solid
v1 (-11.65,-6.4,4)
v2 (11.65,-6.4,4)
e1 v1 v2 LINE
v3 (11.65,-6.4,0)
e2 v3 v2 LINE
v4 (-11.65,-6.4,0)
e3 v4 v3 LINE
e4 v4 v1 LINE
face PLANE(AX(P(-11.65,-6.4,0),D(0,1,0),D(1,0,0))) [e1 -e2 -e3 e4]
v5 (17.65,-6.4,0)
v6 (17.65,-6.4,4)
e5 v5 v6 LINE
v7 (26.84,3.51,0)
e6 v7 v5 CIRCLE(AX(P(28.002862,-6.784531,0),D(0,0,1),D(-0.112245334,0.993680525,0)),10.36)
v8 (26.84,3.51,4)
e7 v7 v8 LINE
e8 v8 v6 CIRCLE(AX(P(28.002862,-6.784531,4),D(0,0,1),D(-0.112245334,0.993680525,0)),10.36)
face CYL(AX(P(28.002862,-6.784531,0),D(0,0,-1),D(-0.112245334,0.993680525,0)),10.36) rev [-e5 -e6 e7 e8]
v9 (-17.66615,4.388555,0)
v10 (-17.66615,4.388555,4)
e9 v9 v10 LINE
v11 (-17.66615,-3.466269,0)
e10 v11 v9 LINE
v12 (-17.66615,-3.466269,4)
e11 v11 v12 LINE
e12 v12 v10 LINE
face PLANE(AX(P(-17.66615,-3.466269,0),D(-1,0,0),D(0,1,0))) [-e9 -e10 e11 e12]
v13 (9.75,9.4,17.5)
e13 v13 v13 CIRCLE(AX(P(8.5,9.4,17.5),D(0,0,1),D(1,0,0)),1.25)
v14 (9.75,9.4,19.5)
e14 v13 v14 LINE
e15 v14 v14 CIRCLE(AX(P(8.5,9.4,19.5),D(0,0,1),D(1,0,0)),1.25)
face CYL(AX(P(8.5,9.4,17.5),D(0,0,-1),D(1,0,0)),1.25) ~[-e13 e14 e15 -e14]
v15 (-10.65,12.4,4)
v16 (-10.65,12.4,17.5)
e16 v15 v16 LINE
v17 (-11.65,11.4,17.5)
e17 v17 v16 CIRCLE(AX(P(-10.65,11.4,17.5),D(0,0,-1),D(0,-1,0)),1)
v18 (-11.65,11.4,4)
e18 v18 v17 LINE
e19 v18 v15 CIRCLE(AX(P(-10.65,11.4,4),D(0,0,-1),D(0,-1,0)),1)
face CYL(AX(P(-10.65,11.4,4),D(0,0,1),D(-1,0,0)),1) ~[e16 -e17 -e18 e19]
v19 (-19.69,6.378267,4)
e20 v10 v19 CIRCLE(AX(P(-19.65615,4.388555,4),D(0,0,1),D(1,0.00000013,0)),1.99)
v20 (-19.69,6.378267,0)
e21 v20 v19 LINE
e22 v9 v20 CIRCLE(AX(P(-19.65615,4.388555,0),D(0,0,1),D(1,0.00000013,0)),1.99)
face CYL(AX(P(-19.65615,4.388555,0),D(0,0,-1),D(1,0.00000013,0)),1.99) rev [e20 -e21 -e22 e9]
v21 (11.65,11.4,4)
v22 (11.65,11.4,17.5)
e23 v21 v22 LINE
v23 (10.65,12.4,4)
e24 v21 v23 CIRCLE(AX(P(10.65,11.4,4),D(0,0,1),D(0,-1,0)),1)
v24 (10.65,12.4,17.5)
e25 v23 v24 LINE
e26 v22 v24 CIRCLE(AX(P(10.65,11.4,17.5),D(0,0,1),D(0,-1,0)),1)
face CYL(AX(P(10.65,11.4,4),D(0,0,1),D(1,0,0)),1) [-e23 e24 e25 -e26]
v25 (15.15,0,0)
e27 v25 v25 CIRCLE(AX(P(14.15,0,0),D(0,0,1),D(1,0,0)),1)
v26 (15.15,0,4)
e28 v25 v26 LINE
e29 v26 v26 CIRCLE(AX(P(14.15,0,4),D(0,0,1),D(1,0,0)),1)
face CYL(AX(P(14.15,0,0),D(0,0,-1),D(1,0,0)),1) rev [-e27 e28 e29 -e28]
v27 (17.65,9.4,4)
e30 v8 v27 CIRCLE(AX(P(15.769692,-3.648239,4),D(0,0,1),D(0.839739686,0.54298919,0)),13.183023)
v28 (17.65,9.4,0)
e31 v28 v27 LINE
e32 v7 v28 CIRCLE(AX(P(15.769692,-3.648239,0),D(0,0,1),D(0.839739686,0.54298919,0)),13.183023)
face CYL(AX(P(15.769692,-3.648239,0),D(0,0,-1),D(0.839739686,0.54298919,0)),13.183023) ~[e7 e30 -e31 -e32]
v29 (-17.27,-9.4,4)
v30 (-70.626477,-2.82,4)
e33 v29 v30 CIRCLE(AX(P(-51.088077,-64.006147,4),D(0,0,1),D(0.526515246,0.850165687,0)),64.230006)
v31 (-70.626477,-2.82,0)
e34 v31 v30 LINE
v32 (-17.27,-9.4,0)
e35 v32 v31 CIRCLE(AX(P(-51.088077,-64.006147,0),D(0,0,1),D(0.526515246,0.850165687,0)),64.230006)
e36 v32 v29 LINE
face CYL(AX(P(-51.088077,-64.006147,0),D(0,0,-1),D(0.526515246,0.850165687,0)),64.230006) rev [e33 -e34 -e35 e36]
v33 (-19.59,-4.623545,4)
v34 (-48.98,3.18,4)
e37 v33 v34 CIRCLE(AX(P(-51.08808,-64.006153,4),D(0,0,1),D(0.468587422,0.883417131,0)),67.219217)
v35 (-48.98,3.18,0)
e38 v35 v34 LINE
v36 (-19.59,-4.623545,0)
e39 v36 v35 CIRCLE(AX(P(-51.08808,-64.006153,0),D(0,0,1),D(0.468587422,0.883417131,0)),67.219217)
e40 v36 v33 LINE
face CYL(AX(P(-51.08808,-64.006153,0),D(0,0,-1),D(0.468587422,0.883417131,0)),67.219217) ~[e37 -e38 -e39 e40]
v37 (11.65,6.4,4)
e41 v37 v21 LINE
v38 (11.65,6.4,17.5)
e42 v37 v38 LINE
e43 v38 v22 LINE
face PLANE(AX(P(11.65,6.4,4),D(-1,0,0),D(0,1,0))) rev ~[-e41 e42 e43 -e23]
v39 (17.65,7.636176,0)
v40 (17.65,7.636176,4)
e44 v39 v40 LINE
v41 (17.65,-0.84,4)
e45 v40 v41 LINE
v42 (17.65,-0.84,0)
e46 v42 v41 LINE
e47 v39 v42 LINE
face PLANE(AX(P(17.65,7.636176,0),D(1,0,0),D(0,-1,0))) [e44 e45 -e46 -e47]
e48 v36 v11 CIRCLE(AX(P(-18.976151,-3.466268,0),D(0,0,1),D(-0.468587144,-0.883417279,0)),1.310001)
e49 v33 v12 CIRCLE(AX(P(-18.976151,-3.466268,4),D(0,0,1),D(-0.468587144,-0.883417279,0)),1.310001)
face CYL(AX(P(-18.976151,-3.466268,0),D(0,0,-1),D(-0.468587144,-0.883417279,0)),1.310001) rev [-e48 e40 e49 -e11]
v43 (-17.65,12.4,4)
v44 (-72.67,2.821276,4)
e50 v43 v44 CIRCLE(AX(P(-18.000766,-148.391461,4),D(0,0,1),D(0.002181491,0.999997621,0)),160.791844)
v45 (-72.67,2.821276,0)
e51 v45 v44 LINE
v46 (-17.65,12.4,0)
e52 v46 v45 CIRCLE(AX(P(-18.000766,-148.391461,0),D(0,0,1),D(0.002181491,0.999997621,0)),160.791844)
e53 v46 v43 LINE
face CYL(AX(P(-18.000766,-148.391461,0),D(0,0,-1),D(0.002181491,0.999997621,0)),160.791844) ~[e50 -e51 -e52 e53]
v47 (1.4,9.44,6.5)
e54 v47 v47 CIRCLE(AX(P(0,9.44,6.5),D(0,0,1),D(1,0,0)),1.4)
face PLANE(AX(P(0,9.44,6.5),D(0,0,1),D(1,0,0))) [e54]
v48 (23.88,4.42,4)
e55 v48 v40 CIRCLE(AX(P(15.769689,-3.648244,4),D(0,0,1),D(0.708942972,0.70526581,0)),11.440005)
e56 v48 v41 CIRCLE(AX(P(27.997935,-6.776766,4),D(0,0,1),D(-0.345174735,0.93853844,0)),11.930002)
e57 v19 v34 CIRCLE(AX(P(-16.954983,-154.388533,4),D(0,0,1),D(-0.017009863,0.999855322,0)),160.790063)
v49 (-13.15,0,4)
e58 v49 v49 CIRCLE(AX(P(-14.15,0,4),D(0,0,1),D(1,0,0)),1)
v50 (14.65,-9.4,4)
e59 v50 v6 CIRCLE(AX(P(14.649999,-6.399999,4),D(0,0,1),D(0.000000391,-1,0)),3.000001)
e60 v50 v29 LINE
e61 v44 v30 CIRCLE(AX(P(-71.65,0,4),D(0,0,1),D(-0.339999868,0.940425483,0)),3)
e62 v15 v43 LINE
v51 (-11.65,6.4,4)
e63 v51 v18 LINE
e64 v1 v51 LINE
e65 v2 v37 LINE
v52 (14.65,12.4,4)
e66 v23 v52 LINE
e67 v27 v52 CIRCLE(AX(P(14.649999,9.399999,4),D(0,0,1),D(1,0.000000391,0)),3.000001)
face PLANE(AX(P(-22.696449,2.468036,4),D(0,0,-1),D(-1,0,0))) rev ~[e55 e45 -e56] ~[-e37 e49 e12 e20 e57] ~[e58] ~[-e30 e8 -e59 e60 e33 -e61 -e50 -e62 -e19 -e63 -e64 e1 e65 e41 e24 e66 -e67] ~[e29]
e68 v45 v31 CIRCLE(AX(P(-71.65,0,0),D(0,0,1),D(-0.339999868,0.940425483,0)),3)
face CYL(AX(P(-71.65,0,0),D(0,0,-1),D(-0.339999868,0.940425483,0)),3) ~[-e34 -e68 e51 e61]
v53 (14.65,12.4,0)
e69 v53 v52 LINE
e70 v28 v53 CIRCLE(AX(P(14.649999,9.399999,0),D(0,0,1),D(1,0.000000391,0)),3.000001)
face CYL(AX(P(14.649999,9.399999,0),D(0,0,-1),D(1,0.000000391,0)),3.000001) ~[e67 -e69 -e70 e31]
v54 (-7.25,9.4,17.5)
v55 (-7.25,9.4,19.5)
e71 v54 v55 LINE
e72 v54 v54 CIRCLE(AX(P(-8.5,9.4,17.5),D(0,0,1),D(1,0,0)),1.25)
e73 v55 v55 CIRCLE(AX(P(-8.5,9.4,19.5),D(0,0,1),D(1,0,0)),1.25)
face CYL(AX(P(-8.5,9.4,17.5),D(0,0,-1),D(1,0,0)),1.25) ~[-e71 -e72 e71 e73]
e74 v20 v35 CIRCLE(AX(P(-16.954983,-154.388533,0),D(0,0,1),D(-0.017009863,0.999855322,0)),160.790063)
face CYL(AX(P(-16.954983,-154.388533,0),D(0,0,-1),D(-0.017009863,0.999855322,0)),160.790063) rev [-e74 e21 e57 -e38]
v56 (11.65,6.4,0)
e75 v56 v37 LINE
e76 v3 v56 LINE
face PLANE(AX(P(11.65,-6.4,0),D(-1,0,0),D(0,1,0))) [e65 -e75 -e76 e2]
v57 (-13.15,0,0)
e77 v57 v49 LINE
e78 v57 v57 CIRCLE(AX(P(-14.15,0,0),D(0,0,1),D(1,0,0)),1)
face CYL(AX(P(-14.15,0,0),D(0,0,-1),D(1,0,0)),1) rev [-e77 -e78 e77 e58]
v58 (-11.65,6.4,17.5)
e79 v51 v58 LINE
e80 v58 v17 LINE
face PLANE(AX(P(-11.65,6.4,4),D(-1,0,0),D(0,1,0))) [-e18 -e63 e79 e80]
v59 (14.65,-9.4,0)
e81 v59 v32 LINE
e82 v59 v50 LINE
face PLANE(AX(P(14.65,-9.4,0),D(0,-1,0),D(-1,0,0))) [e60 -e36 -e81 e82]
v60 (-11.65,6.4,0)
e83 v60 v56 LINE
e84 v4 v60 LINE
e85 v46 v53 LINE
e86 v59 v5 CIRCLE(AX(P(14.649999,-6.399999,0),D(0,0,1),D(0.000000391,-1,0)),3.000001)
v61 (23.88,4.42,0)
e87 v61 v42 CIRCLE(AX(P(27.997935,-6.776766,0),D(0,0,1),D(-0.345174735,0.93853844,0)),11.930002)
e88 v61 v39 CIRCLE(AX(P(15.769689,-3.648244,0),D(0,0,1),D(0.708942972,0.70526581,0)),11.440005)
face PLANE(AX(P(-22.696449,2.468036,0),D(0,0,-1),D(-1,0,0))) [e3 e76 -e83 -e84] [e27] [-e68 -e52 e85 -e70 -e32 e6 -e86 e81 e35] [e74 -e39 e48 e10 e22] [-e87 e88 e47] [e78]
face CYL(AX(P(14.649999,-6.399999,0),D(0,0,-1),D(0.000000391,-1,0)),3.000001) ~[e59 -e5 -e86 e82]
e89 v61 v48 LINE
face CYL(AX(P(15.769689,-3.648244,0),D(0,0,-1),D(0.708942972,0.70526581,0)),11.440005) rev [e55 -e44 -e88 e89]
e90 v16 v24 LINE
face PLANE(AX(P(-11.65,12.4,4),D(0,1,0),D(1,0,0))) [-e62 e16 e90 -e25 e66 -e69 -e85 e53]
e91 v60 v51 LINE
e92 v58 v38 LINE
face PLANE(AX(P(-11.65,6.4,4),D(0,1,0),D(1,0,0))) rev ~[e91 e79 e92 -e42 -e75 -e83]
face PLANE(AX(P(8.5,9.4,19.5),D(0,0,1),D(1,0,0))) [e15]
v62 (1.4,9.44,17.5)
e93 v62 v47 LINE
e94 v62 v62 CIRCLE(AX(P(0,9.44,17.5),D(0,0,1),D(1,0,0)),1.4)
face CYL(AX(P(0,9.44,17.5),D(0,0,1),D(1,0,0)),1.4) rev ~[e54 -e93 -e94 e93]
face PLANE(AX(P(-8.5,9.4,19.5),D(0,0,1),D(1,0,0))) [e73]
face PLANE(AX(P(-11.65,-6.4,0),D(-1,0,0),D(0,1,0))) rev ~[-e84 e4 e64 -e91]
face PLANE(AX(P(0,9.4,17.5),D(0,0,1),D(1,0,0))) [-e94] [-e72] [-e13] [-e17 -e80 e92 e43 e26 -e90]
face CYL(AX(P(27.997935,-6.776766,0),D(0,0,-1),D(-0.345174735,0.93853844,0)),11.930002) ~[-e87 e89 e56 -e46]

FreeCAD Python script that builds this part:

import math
import FreeCAD as App
import Part
import Sketcher

V = App.Vector
Q = App.Units.Quantity


def edges_at(feature, points):
    """Names of the edges that pass closest to the given points."""
    edges = feature.Shape.Edges
    near = lambda p: min(range(len(edges)), key=lambda i: edges[i].distToShape(Part.Vertex(*p))[0])
    return sorted({f"Edge{near(p) + 1}" for p in points})

doc = App.newDocument("Part")
body = doc.addObject("PartDesign::Body", "Body")

# Sketch on XY plane
sketch1 = doc.addObject("Sketcher::SketchObject", "Sketch")
body.addObject(sketch1)
sketch1.AttachmentSupport = (doc.XY_Plane, [""])
sketch1.MapMode = "FlatFace"
sketch1.addGeometry(Part.LineSegment(V(14.7, 12.4, 0), V(-17.6, 12.4, 0)), False)
sketch1.addGeometry(Part.ArcOfCircle(Part.Circle(V(-18, -148.4, 0), V(0, 0, 1), 160.8), math.radians(90), math.radians(110)), False)
sketch1.addGeometry(Part.ArcOfCircle(Part.Circle(V(-71.7, 0, 0), V(0, 0, 1), 3), math.radians(110), math.radians(290)), False)
sketch1.addGeometry(Part.ArcOfCircle(Part.Circle(V(-51.1, -64, 0), V(0, 0, 1), 64.2), math.radians(58), math.radians(108)), False)
sketch1.addGeometry(Part.LineSegment(V(-17.3, -9.4, 0), V(14.7, -9.4, 0)), False)
sketch1.addGeometry(Part.ArcOfCircle(Part.Circle(V(14.6, -6.4, 0), V(0, 0, 1), 3), math.radians(-90), math.radians(0)), False)
sketch1.addGeometry(Part.ArcOfCircle(Part.Circle(V(28, -6.8, 0), V(0, 0, 1), 10.4), math.radians(96), math.radians(178)), False)
sketch1.addGeometry(Part.ArcOfCircle(Part.Circle(V(15.8, -3.6, 0), V(0, 0, 1), 13.2), math.radians(33), math.radians(82)), False)
sketch1.addGeometry(Part.ArcOfCircle(Part.Circle(V(14.6, 9.4, 0), V(0, 0, 1), 3), math.radians(0), math.radians(90)), False)
sketch1.addGeometry(Part.Circle(V(14.2, 0, 0), V(0, 0, 1), 1), False)
sketch1.addGeometry(Part.LineSegment(V(-11.7, -6.4, 0), V(-11.7, 6.4, 0)), False)
sketch1.addGeometry(Part.LineSegment(V(-11.7, 6.4, 0), V(11.7, 6.4, 0)), False)
sketch1.addGeometry(Part.LineSegment(V(11.7, 6.4, 0), V(11.7, -6.4, 0)), False)
sketch1.addGeometry(Part.LineSegment(V(11.7, -6.4, 0), V(-11.7, -6.4, 0)), False)
sketch1.addGeometry(Part.Circle(V(-14.2, 0, 0), V(0, 0, 1), 1), False)
sketch1.addGeometry(Part.ArcOfCircle(Part.Circle(V(15.8, -3.6, 0), V(0, 0, 1), 11.4), math.radians(45), math.radians(81)), False)
sketch1.addGeometry(Part.ArcOfCircle(Part.Circle(V(28, -6.8, 0), V(0, 0, 1), 11.9), math.radians(110), math.radians(150)), False)
sketch1.addGeometry(Part.LineSegment(V(17.6, -0.8, 0), V(17.6, 7.6, 0)), False)
sketch1.addGeometry(Part.ArcOfCircle(Part.Circle(V(-19, -3.5, 0), V(0, 0, 1), 1.3), math.radians(-118), math.radians(0)), False)
sketch1.addGeometry(Part.ArcOfCircle(Part.Circle(V(-51.1, -64, 0), V(0, 0, 1), 67.2), math.radians(62), math.radians(88)), False)
sketch1.addGeometry(Part.ArcOfCircle(Part.Circle(V(-17, -154.4, 0), V(0, 0, 1), 160.8), math.radians(90.97), math.radians(101.49)), False)
sketch1.addGeometry(Part.ArcOfCircle(Part.Circle(V(-19.7, 4.4, 0), V(0, 0, 1), 2), math.radians(0), math.radians(91)), False)
sketch1.addGeometry(Part.LineSegment(V(-17.7, 4.4, 0), V(-17.7, -3.5, 0)), False)
sketch1.addConstraint(Sketcher.Constraint("Coincident", 0, 2, 1, 1))
sketch1.addConstraint(Sketcher.Constraint("Tangent", 1, 2, 2, 1))
sketch1.addConstraint(Sketcher.Constraint("Coincident", 2, 2, 3, 2))
sketch1.addConstraint(Sketcher.Constraint("Coincident", 3, 1, 4, 1))
sketch1.addConstraint(Sketcher.Constraint("Tangent", 4, 2, 5, 1))
sketch1.addConstraint(Sketcher.Constraint("Coincident", 5, 2, 6, 2))
sketch1.addConstraint(Sketcher.Constraint("Coincident", 6, 1, 7, 1))
sketch1.addConstraint(Sketcher.Constraint("Coincident", 7, 2, 8, 1))
sketch1.addConstraint(Sketcher.Constraint("Tangent", 8, 2, 0, 1))
sketch1.addConstraint(Sketcher.Constraint("Coincident", 10, 2, 11, 1))
sketch1.addConstraint(Sketcher.Constraint("Coincident", 11, 2, 12, 1))
sketch1.addConstraint(Sketcher.Constraint("Coincident", 12, 2, 13, 1))
sketch1.addConstraint(Sketcher.Constraint("Coincident", 13, 2, 10, 1))
sketch1.addConstraint(Sketcher.Constraint("Coincident", 15, 1, 16, 1))
sketch1.addConstraint(Sketcher.Constraint("Coincident", 16, 2, 17, 1))
sketch1.addConstraint(Sketcher.Constraint("Coincident", 17, 2, 15, 2))
sketch1.addConstraint(Sketcher.Constraint("Tangent", 18, 1, 19, 1))
sketch1.addConstraint(Sketcher.Constraint("Coincident", 19, 2, 20, 2))
sketch1.addConstraint(Sketcher.Constraint("Tangent", 20, 1, 21, 2))
sketch1.addConstraint(Sketcher.Constraint("Tangent", 21, 1, 22, 1))
sketch1.addConstraint(Sketcher.Constraint("Tangent", 22, 2, 18, 2))
sketch1.addConstraint(Sketcher.Constraint("Horizontal", 0))
sketch1.addConstraint(Sketcher.Constraint("Horizontal", 4))
sketch1.addConstraint(Sketcher.Constraint("Vertical", 10))
sketch1.addConstraint(Sketcher.Constraint("Horizontal", 11))
sketch1.addConstraint(Sketcher.Constraint("Vertical", 12))
sketch1.addConstraint(Sketcher.Constraint("Horizontal", 13))
sketch1.addConstraint(Sketcher.Constraint("Vertical", 17))
sketch1.addConstraint(Sketcher.Constraint("Vertical", 22))
sketch1.addConstraint(Sketcher.Constraint("Coincident", 15, 3, 7, 3))
sketch1.addConstraint(Sketcher.Constraint("Coincident", 19, 3, 3, 3))
sketch1.addConstraint(Sketcher.Constraint("Equal", 2, 5))
sketch1.addConstraint(Sketcher.Constraint("Equal", 5, 8))
sketch1.addConstraint(Sketcher.Constraint("Equal", 9, 14))
sketch1.addConstraint(Sketcher.Constraint("Symmetric", 9, 3, 14, 3, -1, 1))
sketch1.addConstraint(Sketcher.Constraint("Symmetric", 10, 2, 12, 2, -1, 1))
sketch1.addConstraint(Sketcher.Constraint("PointOnObject", 2, 3, -1))
sketch1.addConstraint(Sketcher.Constraint("PointOnObject", 9, 3, -1))
sketch1.addConstraint(Sketcher.Constraint("Horizontal", 8, 3, 7, 2))
sketch1.addConstraint(Sketcher.Constraint("Horizontal", 5, 2, 12, 2))
sketch1.addConstraint(Sketcher.Constraint("Vertical", 5, 3, 8, 3))
sketch1.addConstraint(Sketcher.Constraint("Vertical", 7, 2, 16, 2))
sketch1.addConstraint(Sketcher.Constraint("Diameter", 9, Q("2 mm")))
sketch1.addConstraint(Sketcher.Constraint("Radius", 2, Q("3 mm")))
sketch1.addConstraint(Sketcher.Constraint("Radius", 6, Q("10.36 mm")))
sketch1.addConstraint(Sketcher.Constraint("Radius", 18, Q("1.310001 mm")))
sketch1.addConstraint(Sketcher.Constraint("Radius", 21, Q("1.99 mm")))
sketch1.addConstraint(Sketcher.Constraint("DistanceX", 0, 2, 0, 1, Q("32.3 mm")))
sketch1.addConstraint(Sketcher.Constraint("DistanceX", 11, 1, 11, 2, Q("23.3 mm")))
sketch1.addConstraint(Sketcher.Constraint("DistanceY", 10, 1, 10, 2, Q("12.8 mm")))
sketch1.addConstraint(Sketcher.Constraint("DistanceY", 4, 2, 5, 2, Q("3 mm")))
sketch1.addConstraint(Sketcher.Constraint("DistanceX", 0, 2, 10, 2, Q("6 mm")))
sketch1.addConstraint(Sketcher.Constraint("DistanceY", 10, 2, 0, 2, Q("6 mm")))
sketch1.addConstraint(Sketcher.Constraint("DistanceY", 2, 2, 19, 2, Q("6 mm")))
sketch1.addConstraint(Sketcher.Constraint("DistanceX", 4, 1, 4, 2, Q("31.92 mm")))
sketch1.addConstraint(Sketcher.Constraint("DistanceX", 2, 3, 5, 3, Q("86.299999 mm")))
sketch1.addConstraint(Sketcher.Constraint("DistanceX", 9, 3, 5, 3, Q("0.499999 mm")))
sketch1.addConstraint(Sketcher.Constraint("DistanceY", 2, 2, -1, 1, Q("2.82 mm")))
sketch1.addConstraint(Sketcher.Constraint("DistanceX", -1, 1, 6, 1, Q("26.84 mm")))
sketch1.addConstraint(Sketcher.Constraint("DistanceY", -1, 1, 6, 1, Q("3.51 mm")))
sketch1.addConstraint(Sketcher.Constraint("DistanceX", -1, 1, 15, 1, Q("23.88 mm")))
sketch1.addConstraint(Sketcher.Constraint("DistanceY", -1, 1, 15, 1, Q("4.42 mm")))
sketch1.addConstraint(Sketcher.Constraint("DistanceY", 16, 2, -1, 1, Q("0.84 mm")))
sketch1.addConstraint(Sketcher.Constraint("DistanceX", 18, 1, -1, 1, Q("19.59 mm")))
sketch1.addConstraint(Sketcher.Constraint("DistanceX", 19, 2, -1, 1, Q("48.98 mm")))
sketch1.addConstraint(Sketcher.Constraint("Radius", 1, Q("160.791844 mm")))
sketch1.addConstraint(Sketcher.Constraint("Radius", 3, Q("64.230006 mm")))
sketch1.addConstraint(Sketcher.Constraint("Radius", 7, Q("13.183023 mm")))
sketch1.addConstraint(Sketcher.Constraint("Radius", 16, Q("11.930002 mm")))
sketch1.addConstraint(Sketcher.Constraint("Radius", 20, Q("160.790063 mm")))
sketch1.addConstraint(Sketcher.Constraint("DistanceY", 18, 1, 21, 3, Q("9.0121 mm")))
pad1 = doc.addObject("PartDesign::Pad", "Pad")
body.addObject(pad1)
pad1.Profile = sketch1
pad1.Length = 4

# Sketch on XY plane
sketch2 = doc.addObject("Sketcher::SketchObject", "Sketch001")
body.addObject(sketch2)
sketch2.AttachmentSupport = (doc.XY_Plane, [""])
sketch2.MapMode = "FlatFace"
sketch2.AttachmentOffset = App.Placement(V(0, 0, 4), App.Rotation())
sketch2.addGeometry(Part.LineSegment(V(-12, 12, 0), V(-12, 6, 0)), False)
sketch2.addGeometry(Part.LineSegment(V(-12, 6, 0), V(12, 6, 0)), False)
sketch2.addGeometry(Part.LineSegment(V(12, 6, 0), V(12, 12, 0)), False)
sketch2.addGeometry(Part.LineSegment(V(12, 12, 0), V(-12, 12, 0)), False)
sketch2.addConstraint(Sketcher.Constraint("Coincident", 0, 2, 1, 1))
sketch2.addConstraint(Sketcher.Constraint("Coincident", 1, 2, 2, 1))
sketch2.addConstraint(Sketcher.Constraint("Coincident", 2, 2, 3, 1))
sketch2.addConstraint(Sketcher.Constraint("Coincident", 3, 2, 0, 1))
sketch2.addConstraint(Sketcher.Constraint("Vertical", 0))
sketch2.addConstraint(Sketcher.Constraint("Horizontal", 1))
sketch2.addConstraint(Sketcher.Constraint("Vertical", 2))
sketch2.addConstraint(Sketcher.Constraint("Horizontal", 3))
sketch2.addConstraint(Sketcher.Constraint("DistanceY", 0, 2, 0, 1, Q("6 mm")))
sketch2.addConstraint(Sketcher.Constraint("DistanceX", 1, 1, 1, 2, Q("23.3 mm")))
sketch2.addConstraint(Sketcher.Constraint("DistanceY", -1, 1, 0, 2, Q("6.4 mm")))
sketch2.addConstraint(Sketcher.Constraint("DistanceX", 0, 2, -1, 1, Q("11.65 mm")))
pad2 = doc.addObject("PartDesign::Pad", "Pad001")
body.addObject(pad2)
pad2.Profile = sketch2
pad2.Length = 13.5
doc.recompute()

fillet = doc.addObject("PartDesign::Fillet", "Fillet")
body.addObject(fillet)
fillet.Base = (pad2, edges_at(pad2, [(-11.65, 12.4, 10.75)]))
fillet.Radius = 1
doc.recompute()

fillet2 = doc.addObject("PartDesign::Fillet", "Fillet001")
body.addObject(fillet2)
fillet2.Base = (fillet, edges_at(fillet, [(11.65, 12.4, 10.75)]))
fillet2.Radius = 1

# Sketch on XY plane
sketch3 = doc.addObject("Sketcher::SketchObject", "Sketch002")
body.addObject(sketch3)
sketch3.AttachmentSupport = (doc.XY_Plane, [""])
sketch3.MapMode = "FlatFace"
sketch3.AttachmentOffset = App.Placement(V(0, 0, 17.5), App.Rotation())
sketch3.addGeometry(Part.Circle(V(8.5, 9.4, 0), V(0, 0, 1), 1.2), False)
sketch3.addGeometry(Part.Circle(V(-8.5, 9.4, 0), V(0, 0, 1), 1.2), False)
sketch3.addConstraint(Sketcher.Constraint("Equal", 0, 1))
sketch3.addConstraint(Sketcher.Constraint("Symmetric", 0, 3, 1, 3, -2))
sketch3.addConstraint(Sketcher.Constraint("Diameter", 0, Q("2.5 mm")))
sketch3.addConstraint(Sketcher.Constraint("DistanceX", 1, 3, 0, 3, Q("17 mm")))
sketch3.addConstraint(Sketcher.Constraint("DistanceY", -1, 1, 0, 3, Q("9.4 mm")))
pad3 = doc.addObject("PartDesign::Pad", "Pad002")
body.addObject(pad3)
pad3.Profile = sketch3
pad3.Length = 2

# Sketch on XY plane
sketch4 = doc.addObject("Sketcher::SketchObject", "Sketch003")
body.addObject(sketch4)
sketch4.AttachmentSupport = (doc.XY_Plane, [""])
sketch4.MapMode = "FlatFace"
sketch4.AttachmentOffset = App.Placement(V(0, 0, 17.5), App.Rotation())
sketch4.addGeometry(Part.Circle(V(0, 9.4, 0), V(0, 0, 1), 1.4), False)
sketch4.addConstraint(Sketcher.Constraint("PointOnObject", 0, 3, -2))
sketch4.addConstraint(Sketcher.Constraint("Diameter", 0, Q("2.8 mm")))
sketch4.addConstraint(Sketcher.Constraint("DistanceY", -1, 1, 0, 3, Q("9.44 mm")))
pocket1 = doc.addObject("PartDesign::Pocket", "Pocket")
body.addObject(pocket1)
pocket1.Profile = sketch4
pocket1.Length = 11

doc.recompute()
